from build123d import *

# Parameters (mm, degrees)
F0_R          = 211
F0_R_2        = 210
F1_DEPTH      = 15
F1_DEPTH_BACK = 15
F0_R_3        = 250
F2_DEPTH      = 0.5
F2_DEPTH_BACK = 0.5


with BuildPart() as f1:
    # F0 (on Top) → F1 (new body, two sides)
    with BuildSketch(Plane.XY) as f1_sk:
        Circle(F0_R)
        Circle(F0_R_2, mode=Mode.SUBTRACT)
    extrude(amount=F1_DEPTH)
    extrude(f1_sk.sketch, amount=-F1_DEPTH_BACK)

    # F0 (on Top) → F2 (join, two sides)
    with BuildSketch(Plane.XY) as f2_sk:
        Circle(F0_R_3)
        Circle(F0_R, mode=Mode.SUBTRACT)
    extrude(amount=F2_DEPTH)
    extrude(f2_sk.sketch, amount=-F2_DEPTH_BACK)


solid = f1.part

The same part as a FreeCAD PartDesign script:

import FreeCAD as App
import Part
import Sketcher
from FreeCAD import Vector

doc = App.newDocument("Part")
body = doc.addObject("PartDesign::Body", "Body")

sketch1 = body.newObject("Sketcher::SketchObject", "Sketch")
sketch1.AttachmentSupport = (doc.getObject("XY_Plane"), [""])
sketch1.MapMode = "FlatFace"
sketch1.addGeometry([
    Part.Circle(Vector(0, 0, 0), Vector(0, 0, 1), 211),
    Part.Circle(Vector(0, 0, 0), Vector(0, 0, 1), 210),
], False)
sketch1.addConstraint([
    Sketcher.Constraint("Coincident", 0, 3, -1, 1),
    Sketcher.Constraint("Coincident", 1, 3, -1, 1),
    Sketcher.Constraint("Diameter", 0, 422.0),
    Sketcher.Constraint("Diameter", 1, 420.0),
])
pad1 = body.newObject("PartDesign::Pad", "Pad")
pad1.Profile = sketch1
pad1.Type = "TwoLengths"
pad1.Length = 15
pad1.Length2 = 15

sketch2 = body.newObject("Sketcher::SketchObject", "Sketch001")
sketch2.AttachmentSupport = (doc.getObject("XY_Plane"), [""])
sketch2.MapMode = "FlatFace"
sketch2.addGeometry([
    Part.Circle(Vector(0, 0, 0), Vector(0, 0, 1), 250),
    Part.Circle(Vector(0, 0, 0), Vector(0, 0, 1), 211),
], False)
sketch2.addConstraint([
    Sketcher.Constraint("Coincident", 0, 3, -1, 1),
    Sketcher.Constraint("Coincident", 1, 3, -1, 1),
    Sketcher.Constraint("Diameter", 0, 500.0),
    Sketcher.Constraint("Diameter", 1, 422.0),
])
pad2 = body.newObject("PartDesign::Pad", "Pad001")
pad2.Profile = sketch2
pad2.Type = "TwoLengths"
pad2.Length = 0.5
pad2.Length2 = 0.5

doc.recompute()
